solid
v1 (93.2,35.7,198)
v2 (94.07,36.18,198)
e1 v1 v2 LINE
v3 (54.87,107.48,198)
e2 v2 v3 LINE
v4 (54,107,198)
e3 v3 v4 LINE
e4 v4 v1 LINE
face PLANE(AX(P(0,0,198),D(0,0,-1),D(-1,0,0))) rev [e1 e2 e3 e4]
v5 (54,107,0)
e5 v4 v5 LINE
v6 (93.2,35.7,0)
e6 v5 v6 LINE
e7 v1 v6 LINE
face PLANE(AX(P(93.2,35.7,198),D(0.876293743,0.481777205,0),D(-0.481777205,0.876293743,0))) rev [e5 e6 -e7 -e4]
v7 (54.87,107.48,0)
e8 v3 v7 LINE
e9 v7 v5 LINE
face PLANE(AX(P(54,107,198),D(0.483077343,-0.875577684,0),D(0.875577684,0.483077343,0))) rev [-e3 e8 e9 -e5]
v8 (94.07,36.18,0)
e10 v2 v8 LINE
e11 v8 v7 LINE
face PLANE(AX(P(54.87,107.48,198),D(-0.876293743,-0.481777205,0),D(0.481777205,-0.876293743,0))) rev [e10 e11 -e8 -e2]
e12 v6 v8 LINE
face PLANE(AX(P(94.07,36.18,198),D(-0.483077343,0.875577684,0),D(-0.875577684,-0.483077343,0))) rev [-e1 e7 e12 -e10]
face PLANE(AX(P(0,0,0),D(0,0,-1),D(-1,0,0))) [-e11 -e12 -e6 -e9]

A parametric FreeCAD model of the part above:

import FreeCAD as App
import Part
import Sketcher
from FreeCAD import Vector

doc = App.newDocument("Part")
body = doc.addObject("PartDesign::Body", "Body")

sketch1 = doc.addObject("Sketcher::SketchObject", "Sketch")
body.addObject(sketch1)
sketch1.AttachmentSupport = (doc.XY_Plane, [""])
sketch1.MapMode = "FlatFace"
sketch1.addGeometry(Part.LineSegment(Vector(54.87, 107.48, 0), Vector(54, 107, 0)), False)
sketch1.addGeometry(Part.LineSegment(Vector(54, 107, 0), Vector(93.2, 35.7, 0)), False)
sketch1.addGeometry(Part.LineSegment(Vector(93.2, 35.7, 0), Vector(94.07, 36.18, 0)), False)
sketch1.addGeometry(Part.LineSegment(Vector(94.07, 36.18, 0), Vector(54.87, 107.48, 0)), False)
sketch1.addConstraint(Sketcher.Constraint("Coincident", 0, 2, 1, 1))
sketch1.addConstraint(Sketcher.Constraint("Coincident", 1, 2, 2, 1))
sketch1.addConstraint(Sketcher.Constraint("Coincident", 2, 2, 3, 1))
sketch1.addConstraint(Sketcher.Constraint("Coincident", 3, 2, 0, 1))
sketch1.addConstraint(Sketcher.Constraint("Parallel", 0, 2))
sketch1.addConstraint(Sketcher.Constraint("Parallel", 1, 3))
sketch1.addConstraint(Sketcher.Constraint("DistanceX", -1, 1, 0, 2, 54.0))
sketch1.addConstraint(Sketcher.Constraint("DistanceY", -1, 1, 0, 2, 107.0))
sketch1.addConstraint(Sketcher.Constraint("DistanceX", -1, 1, 1, 2, 93.2))
sketch1.addConstraint(Sketcher.Constraint("DistanceY", -1, 1, 1, 2, 35.7))
sketch1.addConstraint(Sketcher.Constraint("DistanceX", -1, 1, 2, 2, 94.07))
sketch1.addConstraint(Sketcher.Constraint("DistanceY", -1, 1, 2, 2, 36.18))
pad1 = doc.addObject("PartDesign::Pad", "Pad")
body.addObject(pad1)
pad1.Profile = sketch1
pad1.Length = 198

doc.recompute()
